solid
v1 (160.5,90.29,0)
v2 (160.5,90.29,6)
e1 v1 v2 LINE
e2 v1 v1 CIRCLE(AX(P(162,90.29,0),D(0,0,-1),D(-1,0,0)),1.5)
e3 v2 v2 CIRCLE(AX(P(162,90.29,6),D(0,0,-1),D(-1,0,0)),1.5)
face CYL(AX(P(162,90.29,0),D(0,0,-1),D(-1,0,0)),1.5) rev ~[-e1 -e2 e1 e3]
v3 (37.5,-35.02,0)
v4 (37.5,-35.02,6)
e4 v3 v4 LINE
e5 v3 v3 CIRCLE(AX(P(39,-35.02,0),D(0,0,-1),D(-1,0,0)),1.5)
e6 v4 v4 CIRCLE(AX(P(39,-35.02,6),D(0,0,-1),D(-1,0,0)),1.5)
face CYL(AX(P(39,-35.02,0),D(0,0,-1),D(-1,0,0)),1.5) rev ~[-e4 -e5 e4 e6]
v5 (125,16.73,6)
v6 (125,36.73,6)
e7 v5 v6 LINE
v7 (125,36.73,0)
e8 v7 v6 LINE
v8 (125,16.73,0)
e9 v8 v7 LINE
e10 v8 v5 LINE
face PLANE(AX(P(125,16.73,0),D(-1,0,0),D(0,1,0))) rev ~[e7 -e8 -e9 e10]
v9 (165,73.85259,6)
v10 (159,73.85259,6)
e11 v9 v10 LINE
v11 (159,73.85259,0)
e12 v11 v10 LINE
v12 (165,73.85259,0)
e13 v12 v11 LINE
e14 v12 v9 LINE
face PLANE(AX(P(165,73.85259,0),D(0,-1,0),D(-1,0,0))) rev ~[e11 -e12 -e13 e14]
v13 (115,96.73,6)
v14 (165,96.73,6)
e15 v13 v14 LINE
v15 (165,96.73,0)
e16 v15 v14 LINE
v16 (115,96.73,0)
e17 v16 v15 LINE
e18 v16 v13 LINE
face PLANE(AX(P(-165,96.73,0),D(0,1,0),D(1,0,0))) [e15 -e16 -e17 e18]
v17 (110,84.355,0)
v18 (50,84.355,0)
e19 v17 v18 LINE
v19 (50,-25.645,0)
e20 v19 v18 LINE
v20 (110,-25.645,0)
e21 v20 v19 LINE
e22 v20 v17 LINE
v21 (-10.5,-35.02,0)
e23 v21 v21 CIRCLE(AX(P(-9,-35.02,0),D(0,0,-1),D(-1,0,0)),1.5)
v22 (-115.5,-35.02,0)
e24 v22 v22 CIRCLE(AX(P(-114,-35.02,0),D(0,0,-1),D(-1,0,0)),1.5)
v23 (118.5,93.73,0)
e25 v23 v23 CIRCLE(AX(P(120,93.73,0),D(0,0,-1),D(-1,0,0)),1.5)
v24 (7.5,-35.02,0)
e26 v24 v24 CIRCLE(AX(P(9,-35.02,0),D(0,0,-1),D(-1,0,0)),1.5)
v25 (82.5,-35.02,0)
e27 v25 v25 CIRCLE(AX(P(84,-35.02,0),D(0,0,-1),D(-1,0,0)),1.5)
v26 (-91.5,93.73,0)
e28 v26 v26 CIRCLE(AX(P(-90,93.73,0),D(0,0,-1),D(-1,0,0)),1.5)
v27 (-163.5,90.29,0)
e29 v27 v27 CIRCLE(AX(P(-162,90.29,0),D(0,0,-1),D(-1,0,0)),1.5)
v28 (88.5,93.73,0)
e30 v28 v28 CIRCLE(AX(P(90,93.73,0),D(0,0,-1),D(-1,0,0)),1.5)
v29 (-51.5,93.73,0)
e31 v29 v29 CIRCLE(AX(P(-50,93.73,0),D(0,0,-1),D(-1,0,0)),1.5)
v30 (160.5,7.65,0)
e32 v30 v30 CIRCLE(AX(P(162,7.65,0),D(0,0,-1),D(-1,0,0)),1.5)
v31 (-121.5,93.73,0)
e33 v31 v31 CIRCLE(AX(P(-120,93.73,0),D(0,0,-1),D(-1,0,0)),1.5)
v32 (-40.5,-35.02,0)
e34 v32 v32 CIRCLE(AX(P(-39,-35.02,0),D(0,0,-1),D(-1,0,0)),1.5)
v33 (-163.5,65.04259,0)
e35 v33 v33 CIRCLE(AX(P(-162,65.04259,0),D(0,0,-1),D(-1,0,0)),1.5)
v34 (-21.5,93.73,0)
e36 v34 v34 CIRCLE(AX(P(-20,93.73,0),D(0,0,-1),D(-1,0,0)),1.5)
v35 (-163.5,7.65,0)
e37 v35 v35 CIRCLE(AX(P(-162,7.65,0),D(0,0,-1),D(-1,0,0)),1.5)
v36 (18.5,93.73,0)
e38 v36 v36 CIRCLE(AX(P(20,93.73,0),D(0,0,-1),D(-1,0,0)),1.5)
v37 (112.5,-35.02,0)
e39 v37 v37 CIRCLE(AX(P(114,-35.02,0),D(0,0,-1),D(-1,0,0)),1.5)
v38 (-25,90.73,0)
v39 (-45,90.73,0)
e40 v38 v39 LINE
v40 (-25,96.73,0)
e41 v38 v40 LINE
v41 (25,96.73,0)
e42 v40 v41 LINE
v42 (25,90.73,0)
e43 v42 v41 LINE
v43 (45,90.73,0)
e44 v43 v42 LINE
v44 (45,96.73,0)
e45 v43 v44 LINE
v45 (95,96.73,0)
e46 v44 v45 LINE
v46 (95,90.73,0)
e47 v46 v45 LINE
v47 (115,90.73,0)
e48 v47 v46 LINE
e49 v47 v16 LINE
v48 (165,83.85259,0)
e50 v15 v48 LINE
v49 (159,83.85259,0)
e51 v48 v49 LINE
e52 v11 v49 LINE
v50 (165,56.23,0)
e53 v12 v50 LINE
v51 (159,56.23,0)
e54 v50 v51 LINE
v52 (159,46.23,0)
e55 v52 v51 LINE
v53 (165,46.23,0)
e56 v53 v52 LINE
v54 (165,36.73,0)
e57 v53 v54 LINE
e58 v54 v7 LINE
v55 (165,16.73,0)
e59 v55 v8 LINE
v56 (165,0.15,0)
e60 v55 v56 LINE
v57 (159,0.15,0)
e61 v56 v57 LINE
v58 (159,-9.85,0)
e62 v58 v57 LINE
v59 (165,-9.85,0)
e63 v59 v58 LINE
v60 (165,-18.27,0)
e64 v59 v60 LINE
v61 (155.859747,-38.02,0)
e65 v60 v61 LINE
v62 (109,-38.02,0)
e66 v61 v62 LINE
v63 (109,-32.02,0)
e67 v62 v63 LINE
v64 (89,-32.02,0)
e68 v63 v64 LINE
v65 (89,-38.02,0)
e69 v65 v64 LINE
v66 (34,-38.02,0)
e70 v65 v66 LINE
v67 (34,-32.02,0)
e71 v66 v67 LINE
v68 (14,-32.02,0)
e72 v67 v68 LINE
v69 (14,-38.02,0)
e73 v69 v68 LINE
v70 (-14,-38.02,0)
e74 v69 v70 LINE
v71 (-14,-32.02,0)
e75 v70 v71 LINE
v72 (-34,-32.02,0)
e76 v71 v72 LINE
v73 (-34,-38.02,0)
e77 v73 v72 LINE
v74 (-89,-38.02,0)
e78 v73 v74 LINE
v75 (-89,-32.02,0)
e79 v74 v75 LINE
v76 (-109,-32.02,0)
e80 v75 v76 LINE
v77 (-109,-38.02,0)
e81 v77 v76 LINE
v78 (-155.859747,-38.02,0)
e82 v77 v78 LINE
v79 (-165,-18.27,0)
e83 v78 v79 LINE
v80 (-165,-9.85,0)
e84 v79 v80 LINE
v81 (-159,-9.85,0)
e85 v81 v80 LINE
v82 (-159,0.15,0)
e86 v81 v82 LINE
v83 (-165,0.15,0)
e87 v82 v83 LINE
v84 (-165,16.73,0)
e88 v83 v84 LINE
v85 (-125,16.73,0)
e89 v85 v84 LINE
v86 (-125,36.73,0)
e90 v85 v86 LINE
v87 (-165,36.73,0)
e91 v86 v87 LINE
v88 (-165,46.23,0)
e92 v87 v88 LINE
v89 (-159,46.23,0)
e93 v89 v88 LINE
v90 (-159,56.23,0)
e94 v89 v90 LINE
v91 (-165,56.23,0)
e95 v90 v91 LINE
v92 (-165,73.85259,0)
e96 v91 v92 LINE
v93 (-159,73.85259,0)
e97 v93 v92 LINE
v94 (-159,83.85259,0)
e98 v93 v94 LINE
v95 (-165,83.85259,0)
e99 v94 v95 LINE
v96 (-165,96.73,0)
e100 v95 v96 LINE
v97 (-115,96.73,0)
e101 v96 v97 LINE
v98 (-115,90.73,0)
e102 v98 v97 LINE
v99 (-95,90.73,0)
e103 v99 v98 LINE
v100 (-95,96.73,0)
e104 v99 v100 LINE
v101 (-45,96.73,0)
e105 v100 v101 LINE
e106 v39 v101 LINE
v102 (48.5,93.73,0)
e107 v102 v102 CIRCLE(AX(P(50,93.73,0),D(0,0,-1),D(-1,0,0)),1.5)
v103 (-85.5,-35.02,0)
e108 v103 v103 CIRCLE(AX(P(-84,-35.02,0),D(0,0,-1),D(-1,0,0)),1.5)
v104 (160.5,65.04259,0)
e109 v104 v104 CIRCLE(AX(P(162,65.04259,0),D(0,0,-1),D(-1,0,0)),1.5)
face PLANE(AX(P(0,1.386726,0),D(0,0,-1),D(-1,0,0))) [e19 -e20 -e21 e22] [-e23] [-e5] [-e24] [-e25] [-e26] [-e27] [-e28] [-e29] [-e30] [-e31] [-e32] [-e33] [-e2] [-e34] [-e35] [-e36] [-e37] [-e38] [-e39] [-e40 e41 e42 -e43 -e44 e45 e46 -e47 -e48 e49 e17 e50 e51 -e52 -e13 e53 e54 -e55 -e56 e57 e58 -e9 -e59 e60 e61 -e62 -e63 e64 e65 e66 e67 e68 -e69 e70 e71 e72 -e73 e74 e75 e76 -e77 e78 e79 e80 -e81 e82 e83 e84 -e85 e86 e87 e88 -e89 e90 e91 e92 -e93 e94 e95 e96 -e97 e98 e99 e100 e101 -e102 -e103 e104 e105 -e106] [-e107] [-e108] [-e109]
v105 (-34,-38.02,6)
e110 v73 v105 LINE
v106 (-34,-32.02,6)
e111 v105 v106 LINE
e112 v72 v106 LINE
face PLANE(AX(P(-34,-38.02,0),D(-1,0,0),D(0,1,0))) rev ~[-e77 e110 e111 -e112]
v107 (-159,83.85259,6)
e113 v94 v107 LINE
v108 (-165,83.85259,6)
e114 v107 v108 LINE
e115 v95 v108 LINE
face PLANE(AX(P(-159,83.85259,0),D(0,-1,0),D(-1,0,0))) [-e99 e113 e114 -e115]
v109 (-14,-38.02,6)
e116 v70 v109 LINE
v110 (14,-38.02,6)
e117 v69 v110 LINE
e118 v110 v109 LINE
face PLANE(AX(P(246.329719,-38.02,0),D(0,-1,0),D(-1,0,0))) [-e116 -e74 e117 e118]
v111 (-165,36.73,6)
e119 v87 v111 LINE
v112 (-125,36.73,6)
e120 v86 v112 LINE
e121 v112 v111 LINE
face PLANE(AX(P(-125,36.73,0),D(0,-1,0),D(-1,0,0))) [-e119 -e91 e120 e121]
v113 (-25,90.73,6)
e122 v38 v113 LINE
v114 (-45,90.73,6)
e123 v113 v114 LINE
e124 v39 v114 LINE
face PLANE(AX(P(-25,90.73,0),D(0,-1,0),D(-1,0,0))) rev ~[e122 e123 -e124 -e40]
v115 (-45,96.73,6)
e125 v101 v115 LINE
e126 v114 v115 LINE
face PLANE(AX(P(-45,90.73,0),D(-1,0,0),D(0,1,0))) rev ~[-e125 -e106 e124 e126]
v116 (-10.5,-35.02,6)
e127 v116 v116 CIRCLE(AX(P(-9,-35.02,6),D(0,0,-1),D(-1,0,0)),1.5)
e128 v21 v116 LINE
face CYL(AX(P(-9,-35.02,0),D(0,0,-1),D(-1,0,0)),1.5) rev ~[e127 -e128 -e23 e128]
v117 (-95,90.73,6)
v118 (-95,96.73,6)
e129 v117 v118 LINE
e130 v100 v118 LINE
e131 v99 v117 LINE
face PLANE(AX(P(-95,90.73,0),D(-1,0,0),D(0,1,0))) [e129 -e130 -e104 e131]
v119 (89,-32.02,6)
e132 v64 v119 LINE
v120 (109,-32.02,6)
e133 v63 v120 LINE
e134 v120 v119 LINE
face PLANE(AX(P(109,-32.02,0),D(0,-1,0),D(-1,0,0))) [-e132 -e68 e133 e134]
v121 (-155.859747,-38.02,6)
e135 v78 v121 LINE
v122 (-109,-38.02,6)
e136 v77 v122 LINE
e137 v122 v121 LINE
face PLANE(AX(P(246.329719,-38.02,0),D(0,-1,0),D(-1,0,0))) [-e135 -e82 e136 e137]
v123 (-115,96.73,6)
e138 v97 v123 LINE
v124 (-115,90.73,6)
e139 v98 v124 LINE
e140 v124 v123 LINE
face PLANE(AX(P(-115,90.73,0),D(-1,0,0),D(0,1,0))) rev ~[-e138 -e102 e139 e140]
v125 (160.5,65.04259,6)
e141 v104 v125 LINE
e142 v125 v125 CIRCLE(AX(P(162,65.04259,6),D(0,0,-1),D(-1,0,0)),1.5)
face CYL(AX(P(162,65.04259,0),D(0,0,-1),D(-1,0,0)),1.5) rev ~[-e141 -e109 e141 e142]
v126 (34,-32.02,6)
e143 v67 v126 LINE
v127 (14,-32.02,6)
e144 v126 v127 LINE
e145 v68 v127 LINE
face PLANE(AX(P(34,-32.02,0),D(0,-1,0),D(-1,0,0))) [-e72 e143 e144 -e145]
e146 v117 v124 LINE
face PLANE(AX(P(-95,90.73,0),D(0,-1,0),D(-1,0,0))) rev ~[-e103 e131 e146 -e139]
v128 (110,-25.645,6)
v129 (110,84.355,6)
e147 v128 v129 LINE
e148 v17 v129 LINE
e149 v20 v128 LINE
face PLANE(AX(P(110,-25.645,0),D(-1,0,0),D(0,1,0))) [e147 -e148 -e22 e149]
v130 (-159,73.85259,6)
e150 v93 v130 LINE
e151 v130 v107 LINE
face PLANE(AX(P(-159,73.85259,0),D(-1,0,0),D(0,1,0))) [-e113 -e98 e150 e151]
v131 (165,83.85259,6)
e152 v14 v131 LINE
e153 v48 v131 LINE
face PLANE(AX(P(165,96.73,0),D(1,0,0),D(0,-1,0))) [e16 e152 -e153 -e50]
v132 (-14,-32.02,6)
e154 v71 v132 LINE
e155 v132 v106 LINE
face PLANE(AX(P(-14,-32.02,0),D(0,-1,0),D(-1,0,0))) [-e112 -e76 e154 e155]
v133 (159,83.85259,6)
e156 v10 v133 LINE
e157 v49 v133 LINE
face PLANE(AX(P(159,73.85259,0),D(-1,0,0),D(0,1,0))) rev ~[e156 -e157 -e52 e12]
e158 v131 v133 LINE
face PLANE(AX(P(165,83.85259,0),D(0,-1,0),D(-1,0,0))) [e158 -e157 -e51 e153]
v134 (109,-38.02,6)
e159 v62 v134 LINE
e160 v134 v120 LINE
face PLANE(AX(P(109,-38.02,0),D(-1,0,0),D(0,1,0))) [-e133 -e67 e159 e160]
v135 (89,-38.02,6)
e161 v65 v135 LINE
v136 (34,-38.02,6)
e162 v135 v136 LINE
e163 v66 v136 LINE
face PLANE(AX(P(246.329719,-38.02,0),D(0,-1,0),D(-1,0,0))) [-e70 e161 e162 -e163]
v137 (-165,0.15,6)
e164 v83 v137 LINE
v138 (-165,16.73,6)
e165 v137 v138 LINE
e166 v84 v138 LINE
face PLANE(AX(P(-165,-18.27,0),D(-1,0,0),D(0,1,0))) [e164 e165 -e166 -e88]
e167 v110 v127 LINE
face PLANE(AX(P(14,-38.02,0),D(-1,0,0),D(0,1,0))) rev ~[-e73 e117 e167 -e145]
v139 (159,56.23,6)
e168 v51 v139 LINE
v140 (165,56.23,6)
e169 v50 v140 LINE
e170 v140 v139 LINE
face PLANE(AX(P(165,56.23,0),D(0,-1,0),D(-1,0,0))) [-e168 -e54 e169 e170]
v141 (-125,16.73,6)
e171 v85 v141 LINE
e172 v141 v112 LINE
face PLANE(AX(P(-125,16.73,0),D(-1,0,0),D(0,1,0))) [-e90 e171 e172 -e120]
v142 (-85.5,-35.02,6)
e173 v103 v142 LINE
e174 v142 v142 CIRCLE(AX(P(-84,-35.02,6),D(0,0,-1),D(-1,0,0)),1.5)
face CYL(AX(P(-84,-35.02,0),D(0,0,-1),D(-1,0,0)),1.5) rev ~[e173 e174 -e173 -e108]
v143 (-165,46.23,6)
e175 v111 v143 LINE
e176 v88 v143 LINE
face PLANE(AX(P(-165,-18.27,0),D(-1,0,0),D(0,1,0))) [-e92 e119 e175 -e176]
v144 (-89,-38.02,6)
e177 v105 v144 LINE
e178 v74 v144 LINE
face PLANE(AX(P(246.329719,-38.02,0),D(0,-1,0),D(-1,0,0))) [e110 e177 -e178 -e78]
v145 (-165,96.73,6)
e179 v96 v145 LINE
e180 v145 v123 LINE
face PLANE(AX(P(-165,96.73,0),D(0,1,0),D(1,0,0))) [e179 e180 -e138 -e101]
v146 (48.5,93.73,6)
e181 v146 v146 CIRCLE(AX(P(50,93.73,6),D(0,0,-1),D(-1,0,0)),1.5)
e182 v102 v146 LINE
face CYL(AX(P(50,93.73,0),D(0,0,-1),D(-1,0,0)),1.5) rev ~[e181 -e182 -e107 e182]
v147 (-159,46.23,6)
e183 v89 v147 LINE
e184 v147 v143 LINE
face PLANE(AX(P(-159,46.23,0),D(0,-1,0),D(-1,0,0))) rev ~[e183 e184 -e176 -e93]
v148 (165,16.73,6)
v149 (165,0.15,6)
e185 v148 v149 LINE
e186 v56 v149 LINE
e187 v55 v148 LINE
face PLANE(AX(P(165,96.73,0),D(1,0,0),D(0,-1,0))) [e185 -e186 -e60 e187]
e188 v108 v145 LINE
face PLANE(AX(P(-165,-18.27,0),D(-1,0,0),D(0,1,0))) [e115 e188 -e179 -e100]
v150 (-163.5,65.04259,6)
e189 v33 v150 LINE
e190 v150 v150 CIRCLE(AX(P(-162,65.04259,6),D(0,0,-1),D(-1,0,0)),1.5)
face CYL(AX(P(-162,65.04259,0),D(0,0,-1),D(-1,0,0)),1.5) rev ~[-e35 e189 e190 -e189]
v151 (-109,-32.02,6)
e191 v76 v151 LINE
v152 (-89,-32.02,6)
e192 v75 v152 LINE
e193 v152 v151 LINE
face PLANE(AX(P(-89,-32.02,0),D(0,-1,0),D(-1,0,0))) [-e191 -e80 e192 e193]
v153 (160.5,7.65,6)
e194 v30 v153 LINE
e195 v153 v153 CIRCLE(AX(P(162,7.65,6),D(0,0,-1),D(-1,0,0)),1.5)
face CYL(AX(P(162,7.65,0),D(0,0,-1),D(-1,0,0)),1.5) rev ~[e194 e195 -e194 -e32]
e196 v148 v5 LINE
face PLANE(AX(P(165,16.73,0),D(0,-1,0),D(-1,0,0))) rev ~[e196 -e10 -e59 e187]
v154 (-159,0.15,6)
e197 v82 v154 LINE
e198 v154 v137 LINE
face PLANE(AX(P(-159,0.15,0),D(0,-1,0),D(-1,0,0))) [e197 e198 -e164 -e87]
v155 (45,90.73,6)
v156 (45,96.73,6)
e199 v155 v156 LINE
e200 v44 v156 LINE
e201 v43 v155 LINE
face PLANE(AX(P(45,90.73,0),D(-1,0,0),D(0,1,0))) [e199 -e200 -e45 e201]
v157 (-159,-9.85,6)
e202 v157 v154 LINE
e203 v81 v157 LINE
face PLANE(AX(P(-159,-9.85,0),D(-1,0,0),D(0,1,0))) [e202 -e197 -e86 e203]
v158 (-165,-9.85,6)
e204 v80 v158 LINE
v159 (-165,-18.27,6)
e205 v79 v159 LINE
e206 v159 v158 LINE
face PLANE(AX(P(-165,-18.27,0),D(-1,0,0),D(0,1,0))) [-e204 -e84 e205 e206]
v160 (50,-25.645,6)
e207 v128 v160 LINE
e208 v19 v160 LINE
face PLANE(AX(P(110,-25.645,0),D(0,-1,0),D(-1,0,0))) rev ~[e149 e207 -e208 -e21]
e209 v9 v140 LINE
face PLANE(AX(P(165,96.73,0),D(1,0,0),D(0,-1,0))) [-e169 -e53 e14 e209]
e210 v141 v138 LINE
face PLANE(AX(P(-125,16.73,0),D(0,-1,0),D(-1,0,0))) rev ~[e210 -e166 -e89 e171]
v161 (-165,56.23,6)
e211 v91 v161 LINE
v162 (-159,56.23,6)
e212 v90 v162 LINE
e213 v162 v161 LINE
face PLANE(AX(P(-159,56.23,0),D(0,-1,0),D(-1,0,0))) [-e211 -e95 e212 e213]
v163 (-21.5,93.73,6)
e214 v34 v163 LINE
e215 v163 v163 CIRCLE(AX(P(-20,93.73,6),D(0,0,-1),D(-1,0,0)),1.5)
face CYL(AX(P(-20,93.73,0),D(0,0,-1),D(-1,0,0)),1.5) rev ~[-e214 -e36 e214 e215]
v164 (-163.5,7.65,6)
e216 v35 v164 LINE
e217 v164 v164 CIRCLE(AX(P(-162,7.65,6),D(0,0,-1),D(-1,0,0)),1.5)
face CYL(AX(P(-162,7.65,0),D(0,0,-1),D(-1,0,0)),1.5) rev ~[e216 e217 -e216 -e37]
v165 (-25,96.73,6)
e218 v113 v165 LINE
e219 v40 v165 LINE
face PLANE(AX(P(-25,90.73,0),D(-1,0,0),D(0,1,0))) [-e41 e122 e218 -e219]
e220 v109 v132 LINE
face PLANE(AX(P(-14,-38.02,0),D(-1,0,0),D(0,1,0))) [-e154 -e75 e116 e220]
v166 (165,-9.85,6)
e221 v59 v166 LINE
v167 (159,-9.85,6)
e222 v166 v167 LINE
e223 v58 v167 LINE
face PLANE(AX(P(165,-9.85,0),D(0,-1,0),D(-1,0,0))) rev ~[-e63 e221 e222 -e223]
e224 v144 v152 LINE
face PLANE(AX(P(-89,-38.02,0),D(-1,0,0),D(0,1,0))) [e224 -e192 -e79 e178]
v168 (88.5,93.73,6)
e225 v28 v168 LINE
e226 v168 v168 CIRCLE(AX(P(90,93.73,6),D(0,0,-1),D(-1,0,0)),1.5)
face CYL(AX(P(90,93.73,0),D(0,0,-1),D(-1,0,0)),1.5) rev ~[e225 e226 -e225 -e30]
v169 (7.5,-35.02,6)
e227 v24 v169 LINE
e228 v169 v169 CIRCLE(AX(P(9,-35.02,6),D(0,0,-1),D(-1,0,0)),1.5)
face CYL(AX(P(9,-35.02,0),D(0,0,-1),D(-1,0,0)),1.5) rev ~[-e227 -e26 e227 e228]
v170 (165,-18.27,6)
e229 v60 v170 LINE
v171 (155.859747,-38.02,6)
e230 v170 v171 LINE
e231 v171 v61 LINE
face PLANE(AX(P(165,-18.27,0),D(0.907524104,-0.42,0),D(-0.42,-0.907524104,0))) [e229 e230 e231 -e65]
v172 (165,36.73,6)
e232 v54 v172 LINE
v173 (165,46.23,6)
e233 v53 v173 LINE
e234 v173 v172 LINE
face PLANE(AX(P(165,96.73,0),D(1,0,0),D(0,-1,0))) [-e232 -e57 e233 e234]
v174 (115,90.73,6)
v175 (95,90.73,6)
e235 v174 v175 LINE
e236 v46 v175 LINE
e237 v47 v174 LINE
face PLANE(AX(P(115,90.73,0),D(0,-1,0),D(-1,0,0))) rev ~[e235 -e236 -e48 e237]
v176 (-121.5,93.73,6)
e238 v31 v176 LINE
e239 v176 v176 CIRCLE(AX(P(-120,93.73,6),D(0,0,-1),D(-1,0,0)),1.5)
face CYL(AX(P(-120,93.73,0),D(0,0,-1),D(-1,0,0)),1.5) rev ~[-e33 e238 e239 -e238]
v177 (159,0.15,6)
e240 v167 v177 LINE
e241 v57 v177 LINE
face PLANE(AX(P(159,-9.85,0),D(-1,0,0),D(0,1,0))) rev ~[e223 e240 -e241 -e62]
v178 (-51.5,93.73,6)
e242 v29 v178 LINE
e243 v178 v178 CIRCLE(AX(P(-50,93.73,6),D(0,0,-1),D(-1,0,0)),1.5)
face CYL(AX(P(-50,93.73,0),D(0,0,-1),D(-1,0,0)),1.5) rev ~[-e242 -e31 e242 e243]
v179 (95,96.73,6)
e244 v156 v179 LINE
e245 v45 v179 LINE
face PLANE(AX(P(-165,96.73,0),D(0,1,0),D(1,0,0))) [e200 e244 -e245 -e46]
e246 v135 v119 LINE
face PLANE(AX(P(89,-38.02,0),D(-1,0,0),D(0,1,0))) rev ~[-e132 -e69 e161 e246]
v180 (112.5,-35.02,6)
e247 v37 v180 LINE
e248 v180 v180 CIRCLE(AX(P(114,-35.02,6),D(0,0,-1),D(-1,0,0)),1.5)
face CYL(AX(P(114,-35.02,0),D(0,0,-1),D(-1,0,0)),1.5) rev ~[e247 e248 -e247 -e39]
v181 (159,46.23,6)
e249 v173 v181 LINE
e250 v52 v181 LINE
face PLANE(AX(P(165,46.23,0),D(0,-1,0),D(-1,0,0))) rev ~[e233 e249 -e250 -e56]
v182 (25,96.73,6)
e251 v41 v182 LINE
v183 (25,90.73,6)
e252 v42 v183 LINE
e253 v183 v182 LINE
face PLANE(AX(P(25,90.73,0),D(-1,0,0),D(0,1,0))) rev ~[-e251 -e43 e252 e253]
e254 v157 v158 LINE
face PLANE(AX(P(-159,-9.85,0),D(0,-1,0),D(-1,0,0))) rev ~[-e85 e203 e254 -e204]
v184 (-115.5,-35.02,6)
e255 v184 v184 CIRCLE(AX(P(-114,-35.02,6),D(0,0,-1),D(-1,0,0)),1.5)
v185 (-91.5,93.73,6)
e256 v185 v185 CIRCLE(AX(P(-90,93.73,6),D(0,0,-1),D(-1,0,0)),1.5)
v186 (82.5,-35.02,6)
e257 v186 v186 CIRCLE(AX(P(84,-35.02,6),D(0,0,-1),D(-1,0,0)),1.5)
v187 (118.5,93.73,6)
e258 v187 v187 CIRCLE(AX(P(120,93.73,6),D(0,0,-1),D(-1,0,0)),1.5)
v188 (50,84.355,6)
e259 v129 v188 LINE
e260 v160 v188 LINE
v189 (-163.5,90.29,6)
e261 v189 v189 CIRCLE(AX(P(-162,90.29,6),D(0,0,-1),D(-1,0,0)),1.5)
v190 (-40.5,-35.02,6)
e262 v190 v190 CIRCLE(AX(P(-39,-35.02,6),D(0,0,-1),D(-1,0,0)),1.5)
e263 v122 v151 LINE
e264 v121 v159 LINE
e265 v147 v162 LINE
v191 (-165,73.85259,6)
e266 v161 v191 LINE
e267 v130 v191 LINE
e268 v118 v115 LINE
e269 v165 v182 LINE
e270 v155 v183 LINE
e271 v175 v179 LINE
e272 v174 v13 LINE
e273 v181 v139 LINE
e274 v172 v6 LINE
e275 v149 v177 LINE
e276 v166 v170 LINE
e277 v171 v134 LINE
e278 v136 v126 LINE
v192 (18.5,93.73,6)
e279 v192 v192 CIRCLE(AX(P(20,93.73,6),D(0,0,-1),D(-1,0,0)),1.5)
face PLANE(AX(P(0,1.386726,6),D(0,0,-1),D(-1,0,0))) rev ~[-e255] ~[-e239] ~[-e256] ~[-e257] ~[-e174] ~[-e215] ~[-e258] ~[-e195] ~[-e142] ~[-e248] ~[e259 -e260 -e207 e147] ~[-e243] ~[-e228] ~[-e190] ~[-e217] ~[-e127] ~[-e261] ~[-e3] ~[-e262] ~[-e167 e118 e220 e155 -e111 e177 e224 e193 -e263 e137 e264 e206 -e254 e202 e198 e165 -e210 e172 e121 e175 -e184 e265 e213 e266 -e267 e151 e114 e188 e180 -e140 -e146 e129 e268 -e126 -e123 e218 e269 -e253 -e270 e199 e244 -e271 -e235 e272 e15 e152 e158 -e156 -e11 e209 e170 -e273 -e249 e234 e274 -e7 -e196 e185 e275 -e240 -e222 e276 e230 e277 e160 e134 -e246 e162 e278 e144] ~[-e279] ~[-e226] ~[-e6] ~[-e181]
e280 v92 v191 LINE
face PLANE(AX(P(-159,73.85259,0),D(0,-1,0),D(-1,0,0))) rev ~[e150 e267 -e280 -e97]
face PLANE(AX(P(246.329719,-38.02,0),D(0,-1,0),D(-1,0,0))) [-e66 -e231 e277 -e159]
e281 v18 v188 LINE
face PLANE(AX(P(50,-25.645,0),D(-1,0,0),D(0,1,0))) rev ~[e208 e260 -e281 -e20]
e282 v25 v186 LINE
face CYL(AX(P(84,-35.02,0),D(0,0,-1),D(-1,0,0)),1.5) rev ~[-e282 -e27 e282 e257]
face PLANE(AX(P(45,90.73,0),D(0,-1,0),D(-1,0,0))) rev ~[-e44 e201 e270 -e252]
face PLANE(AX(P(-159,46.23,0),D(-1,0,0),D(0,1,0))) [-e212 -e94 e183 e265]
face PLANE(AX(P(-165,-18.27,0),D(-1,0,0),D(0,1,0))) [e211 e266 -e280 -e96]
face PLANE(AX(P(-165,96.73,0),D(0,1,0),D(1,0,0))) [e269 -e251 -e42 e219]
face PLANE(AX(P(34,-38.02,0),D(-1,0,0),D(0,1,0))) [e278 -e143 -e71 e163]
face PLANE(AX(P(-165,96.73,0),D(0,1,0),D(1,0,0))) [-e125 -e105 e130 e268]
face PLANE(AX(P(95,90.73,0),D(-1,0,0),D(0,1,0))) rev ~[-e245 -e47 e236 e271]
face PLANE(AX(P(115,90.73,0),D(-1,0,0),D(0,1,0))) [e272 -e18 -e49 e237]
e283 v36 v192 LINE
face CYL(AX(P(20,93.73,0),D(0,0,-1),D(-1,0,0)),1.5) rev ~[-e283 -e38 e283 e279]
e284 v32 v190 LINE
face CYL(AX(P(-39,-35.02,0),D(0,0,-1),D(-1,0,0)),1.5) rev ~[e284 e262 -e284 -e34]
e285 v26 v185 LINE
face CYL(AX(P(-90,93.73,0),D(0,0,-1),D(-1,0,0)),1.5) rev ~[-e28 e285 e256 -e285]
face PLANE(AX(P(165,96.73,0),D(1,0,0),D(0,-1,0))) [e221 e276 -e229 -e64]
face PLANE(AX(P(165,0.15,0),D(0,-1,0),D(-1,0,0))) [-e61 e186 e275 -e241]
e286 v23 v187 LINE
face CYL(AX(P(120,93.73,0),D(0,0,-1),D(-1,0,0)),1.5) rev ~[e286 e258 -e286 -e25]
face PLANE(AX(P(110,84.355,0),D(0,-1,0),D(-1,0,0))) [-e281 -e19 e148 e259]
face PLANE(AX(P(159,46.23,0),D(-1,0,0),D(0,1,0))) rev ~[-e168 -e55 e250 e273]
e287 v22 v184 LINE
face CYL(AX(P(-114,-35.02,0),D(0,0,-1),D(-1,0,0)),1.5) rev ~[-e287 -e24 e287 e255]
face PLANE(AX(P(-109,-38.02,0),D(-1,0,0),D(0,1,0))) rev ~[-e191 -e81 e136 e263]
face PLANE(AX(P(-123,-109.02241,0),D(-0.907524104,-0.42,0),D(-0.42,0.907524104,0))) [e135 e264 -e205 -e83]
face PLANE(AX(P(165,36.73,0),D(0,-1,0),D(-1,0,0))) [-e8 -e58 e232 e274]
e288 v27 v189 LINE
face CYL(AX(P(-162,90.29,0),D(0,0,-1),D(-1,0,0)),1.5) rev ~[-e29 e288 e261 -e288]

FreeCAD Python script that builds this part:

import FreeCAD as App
import Part
import Sketcher
from FreeCAD import Vector
Q = App.Units.Quantity

doc = App.newDocument("Part")
body = doc.addObject("PartDesign::Body", "Body")

# Sketch on XY plane
sketch1 = body.newObject("Sketcher::SketchObject", "Sketch")
sketch1.AttachmentSupport = (doc.getObject("XY_Plane"), [""])
sketch1.MapMode = "FlatFace"
sketch1.addGeometry([
    Part.LineSegment(Vector(165, 96.73, 0), Vector(-165, 96.73, 0)),  # 0
    Part.LineSegment(Vector(-165, 96.73, 0), Vector(-165, -18.27, 0)),  # 1
    Part.LineSegment(Vector(-165, -18.27, 0), Vector(-123, -109.02241, 0)),  # 2
    Part.LineSegment(Vector(-123, -109.02241, 0), Vector(123, -109.02241, 0)),  # 3
    Part.LineSegment(Vector(123, -109.02241, 0), Vector(165, -18.27, 0)),  # 4
    Part.LineSegment(Vector(165, -18.27, 0), Vector(165, 96.73, 0)),  # 5
], False)
sketch1.addConstraint([
    Sketcher.Constraint("Coincident", 0, 2, 1, 1),
    Sketcher.Constraint("Coincident", 1, 2, 2, 1),
    Sketcher.Constraint("Coincident", 2, 2, 3, 1),
    Sketcher.Constraint("Coincident", 3, 2, 4, 1),
    Sketcher.Constraint("Coincident", 4, 2, 5, 1),
    Sketcher.Constraint("Coincident", 5, 2, 0, 1),
    Sketcher.Constraint("Horizontal", 0),
    Sketcher.Constraint("Vertical", 1),
    Sketcher.Constraint("Horizontal", 3),
    Sketcher.Constraint("Vertical", 5),
    Sketcher.Constraint("Symmetric", 1, 2, 4, 2, -2),
    Sketcher.Constraint("Equal", 2, 4),
    Sketcher.Constraint("DistanceX", 0, 2, 0, 1, Q("330 mm")),
    Sketcher.Constraint("DistanceX", 3, 1, 3, 2, Q("246 mm")),
    Sketcher.Constraint("DistanceY", 1, 2, 1, 1, Q("115 mm")),
    Sketcher.Constraint("Distance", 2, Q("100 mm")),
    Sketcher.Constraint("DistanceY", -1, 1, 0, 2, Q("96.73 mm")),
])
pad1 = body.newObject("PartDesign::Pad", "Pad")
pad1.Profile = sketch1
pad1.Length = 6

# Sketch on XY plane
sketch2 = body.newObject("Sketcher::SketchObject", "Sketch001")
sketch2.AttachmentSupport = (doc.getObject("XY_Plane"), [""])
sketch2.MapMode = "FlatFace"
sketch2.addGeometry([
    Part.LineSegment(Vector(-159, 0.15, 0), Vector(-159, -9.85, 0)),  # 0
    Part.LineSegment(Vector(-159, -9.85, 0), Vector(-165, -9.85, 0)),  # 1
    Part.LineSegment(Vector(-165, -9.85, 0), Vector(-165, 0.15, 0)),  # 2
    Part.LineSegment(Vector(-165, 0.15, 0), Vector(-159, 0.15, 0)),  # 3
    Part.LineSegment(Vector(-159, 83.85259, 0), Vector(-159, 73.85259, 0)),  # 4
    Part.LineSegment(Vector(-159, 73.85259, 0), Vector(-165, 73.85259, 0)),  # 5
    Part.LineSegment(Vector(-165, 73.85259, 0), Vector(-165, 83.85259, 0)),  # 6
    Part.LineSegment(Vector(-165, 83.85259, 0), Vector(-159, 83.85259, 0)),  # 7
    Part.LineSegment(Vector(34, -32.02, 0), Vector(34, -38.02, 0)),  # 8
    Part.LineSegment(Vector(34, -38.02, 0), Vector(14, -38.02, 0)),  # 9
    Part.LineSegment(Vector(14, -38.02, 0), Vector(14, -32.02, 0)),  # 10
    Part.LineSegment(Vector(14, -32.02, 0), Vector(34, -32.02, 0)),  # 11
    Part.LineSegment(Vector(-89, -32.02, 0), Vector(-89, -38.02, 0)),  # 12
    Part.LineSegment(Vector(-89, -38.02, 0), Vector(-109, -38.02, 0)),  # 13
    Part.LineSegment(Vector(-109, -38.02, 0), Vector(-109, -32.02, 0)),  # 14
    Part.LineSegment(Vector(-109, -32.02, 0), Vector(-89, -32.02, 0)),  # 15
    Part.LineSegment(Vector(165, 56.23, 0), Vector(165, 46.23, 0)),  # 16
    Part.LineSegment(Vector(165, 46.23, 0), Vector(159, 46.23, 0)),  # 17
    Part.LineSegment(Vector(159, 46.23, 0), Vector(159, 56.23, 0)),  # 18
    Part.LineSegment(Vector(159, 56.23, 0), Vector(165, 56.23, 0)),  # 19
    Part.LineSegment(Vector(110, 84.355, 0), Vector(110, -25.645, 0)),  # 20
    Part.LineSegment(Vector(110, -25.645, 0), Vector(50, -25.645, 0)),  # 21
    Part.LineSegment(Vector(50, -25.645, 0), Vector(50, 84.355, 0)),  # 22
    Part.LineSegment(Vector(50, 84.355, 0), Vector(110, 84.355, 0)),  # 23
    Part.LineSegment(Vector(-14, -32.02, 0), Vector(-14, -38.02, 0)),  # 24
    Part.LineSegment(Vector(-14, -38.02, 0), Vector(-34, -38.02, 0)),  # 25
    Part.LineSegment(Vector(-34, -38.02, 0), Vector(-34, -32.02, 0)),  # 26
    Part.LineSegment(Vector(-34, -32.02, 0), Vector(-14, -32.02, 0)),  # 27
    Part.LineSegment(Vector(165, 83.85259, 0), Vector(165, 73.85259, 0)),  # 28
    Part.LineSegment(Vector(165, 73.85259, 0), Vector(159, 73.85259, 0)),  # 29
    Part.LineSegment(Vector(159, 73.85259, 0), Vector(159, 83.85259, 0)),  # 30
    Part.LineSegment(Vector(159, 83.85259, 0), Vector(165, 83.85259, 0)),  # 31
    Part.LineSegment(Vector(165, 0.15, 0), Vector(165, -9.85, 0)),  # 32
    Part.LineSegment(Vector(165, -9.85, 0), Vector(159, -9.85, 0)),  # 33
    Part.LineSegment(Vector(159, -9.85, 0), Vector(159, 0.15, 0)),  # 34
    Part.LineSegment(Vector(159, 0.15, 0), Vector(165, 0.15, 0)),  # 35
    Part.LineSegment(Vector(-95, 96.73, 0), Vector(-95, 90.73, 0)),  # 36
    Part.LineSegment(Vector(-95, 90.73, 0), Vector(-115, 90.73, 0)),  # 37
    Part.LineSegment(Vector(-115, 90.73, 0), Vector(-115, 96.73, 0)),  # 38
    Part.LineSegment(Vector(-115, 96.73, 0), Vector(-95, 96.73, 0)),  # 39
    Part.LineSegment(Vector(45, 96.73, 0), Vector(45, 90.73, 0)),  # 40
    Part.LineSegment(Vector(45, 90.73, 0), Vector(25, 90.73, 0)),  # 41
    Part.LineSegment(Vector(25, 90.73, 0), Vector(25, 96.73, 0)),  # 42
    Part.LineSegment(Vector(25, 96.73, 0), Vector(45, 96.73, 0)),  # 43
    Part.LineSegment(Vector(-25, 96.73, 0), Vector(-25, 90.73, 0)),  # 44
    Part.LineSegment(Vector(-25, 90.73, 0), Vector(-45, 90.73, 0)),  # 45
    Part.LineSegment(Vector(-45, 90.73, 0), Vector(-45, 96.73, 0)),  # 46
    Part.LineSegment(Vector(-45, 96.73, 0), Vector(-25, 96.73, 0)),  # 47
    Part.LineSegment(Vector(115, 96.73, 0), Vector(115, 90.73, 0)),  # 48
    Part.LineSegment(Vector(115, 90.73, 0), Vector(95, 90.73, 0)),  # 49
    Part.LineSegment(Vector(95, 90.73, 0), Vector(95, 96.73, 0)),  # 50
    Part.LineSegment(Vector(95, 96.73, 0), Vector(115, 96.73, 0)),  # 51
    Part.LineSegment(Vector(-159, 56.23, 0), Vector(-159, 46.23, 0)),  # 52
    Part.LineSegment(Vector(-159, 46.23, 0), Vector(-165, 46.23, 0)),  # 53
    Part.LineSegment(Vector(-165, 46.23, 0), Vector(-165, 56.23, 0)),  # 54
    Part.LineSegment(Vector(-165, 56.23, 0), Vector(-159, 56.23, 0)),  # 55
    Part.LineSegment(Vector(109, -32.02, 0), Vector(109, -38.02, 0)),  # 56
    Part.LineSegment(Vector(109, -38.02, 0), Vector(89, -38.02, 0)),  # 57
    Part.LineSegment(Vector(89, -38.02, 0), Vector(89, -32.02, 0)),  # 58
    Part.LineSegment(Vector(89, -32.02, 0), Vector(109, -32.02, 0)),  # 59
    Part.LineSegment(Vector(165, 36.73, 0), Vector(165, 16.73, 0)),  # 60
    Part.LineSegment(Vector(165, 16.73, 0), Vector(125, 16.73, 0)),  # 61
    Part.LineSegment(Vector(125, 16.73, 0), Vector(125, 36.73, 0)),  # 62
    Part.LineSegment(Vector(125, 36.73, 0), Vector(165, 36.73, 0)),  # 63
    Part.LineSegment(Vector(-125, 36.73, 0), Vector(-125, 16.73, 0)),  # 64
    Part.LineSegment(Vector(-125, 16.73, 0), Vector(-165, 16.73, 0)),  # 65
    Part.LineSegment(Vector(-165, 16.73, 0), Vector(-165, 36.73, 0)),  # 66
    Part.LineSegment(Vector(-165, 36.73, 0), Vector(-125, 36.73, 0)),  # 67
], False)
sketch2.addConstraint([
    Sketcher.Constraint("Coincident", 0, 2, 1, 1),
    Sketcher.Constraint("Coincident", 1, 2, 2, 1),
    Sketcher.Constraint("Coincident", 2, 2, 3, 1),
    Sketcher.Constraint("Coincident", 3, 2, 0, 1),
    Sketcher.Constraint("Coincident", 4, 2, 5, 1),
    Sketcher.Constraint("Coincident", 5, 2, 6, 1),
    Sketcher.Constraint("Coincident", 6, 2, 7, 1),
    Sketcher.Constraint("Coincident", 7, 2, 4, 1),
    Sketcher.Constraint("Coincident", 8, 2, 9, 1),
    Sketcher.Constraint("Coincident", 9, 2, 10, 1),
    Sketcher.Constraint("Coincident", 10, 2, 11, 1),
    Sketcher.Constraint("Coincident", 11, 2, 8, 1),
    Sketcher.Constraint("Coincident", 12, 2, 13, 1),
    Sketcher.Constraint("Coincident", 13, 2, 14, 1),
    Sketcher.Constraint("Coincident", 14, 2, 15, 1),
    Sketcher.Constraint("Coincident", 15, 2, 12, 1),
    Sketcher.Constraint("Coincident", 16, 2, 17, 1),
    Sketcher.Constraint("Coincident", 17, 2, 18, 1),
    Sketcher.Constraint("Coincident", 18, 2, 19, 1),
    Sketcher.Constraint("Coincident", 19, 2, 16, 1),
    Sketcher.Constraint("Coincident", 20, 2, 21, 1),
    Sketcher.Constraint("Coincident", 21, 2, 22, 1),
    Sketcher.Constraint("Coincident", 22, 2, 23, 1),
    Sketcher.Constraint("Coincident", 23, 2, 20, 1),
    Sketcher.Constraint("Coincident", 24, 2, 25, 1),
    Sketcher.Constraint("Coincident", 25, 2, 26, 1),
    Sketcher.Constraint("Coincident", 26, 2, 27, 1),
    Sketcher.Constraint("Coincident", 27, 2, 24, 1),
    Sketcher.Constraint("Coincident", 28, 2, 29, 1),
    Sketcher.Constraint("Coincident", 29, 2, 30, 1),
    Sketcher.Constraint("Coincident", 30, 2, 31, 1),
    Sketcher.Constraint("Coincident", 31, 2, 28, 1),
    Sketcher.Constraint("Coincident", 32, 2, 33, 1),
    Sketcher.Constraint("Coincident", 33, 2, 34, 1),
    Sketcher.Constraint("Coincident", 34, 2, 35, 1),
    Sketcher.Constraint("Coincident", 35, 2, 32, 1),
    Sketcher.Constraint("Coincident", 36, 2, 37, 1),
    Sketcher.Constraint("Coincident", 37, 2, 38, 1),
    Sketcher.Constraint("Coincident", 38, 2, 39, 1),
    Sketcher.Constraint("Coincident", 39, 2, 36, 1),
    Sketcher.Constraint("Coincident", 40, 2, 41, 1),
    Sketcher.Constraint("Coincident", 41, 2, 42, 1),
    Sketcher.Constraint("Coincident", 42, 2, 43, 1),
    Sketcher.Constraint("Coincident", 43, 2, 40, 1),
    Sketcher.Constraint("Coincident", 44, 2, 45, 1),
    Sketcher.Constraint("Coincident", 45, 2, 46, 1),
    Sketcher.Constraint("Coincident", 46, 2, 47, 1),
    Sketcher.Constraint("Coincident", 47, 2, 44, 1),
    Sketcher.Constraint("Coincident", 48, 2, 49, 1),
    Sketcher.Constraint("Coincident", 49, 2, 50, 1),
    Sketcher.Constraint("Coincident", 50, 2, 51, 1),
    Sketcher.Constraint("Coincident", 51, 2, 48, 1),
    Sketcher.Constraint("Coincident", 52, 2, 53, 1),
    Sketcher.Constraint("Coincident", 53, 2, 54, 1),
    Sketcher.Constraint("Coincident", 54, 2, 55, 1),
    Sketcher.Constraint("Coincident", 55, 2, 52, 1),
    Sketcher.Constraint("Coincident", 56, 2, 57, 1),
    Sketcher.Constraint("Coincident", 57, 2, 58, 1),
    Sketcher.Constraint("Coincident", 58, 2, 59, 1),
    Sketcher.Constraint("Coincident", 59, 2, 56, 1),
    Sketcher.Constraint("Coincident", 60, 2, 61, 1),
    Sketcher.Constraint("Coincident", 61, 2, 62, 1),
    Sketcher.Constraint("Coincident", 62, 2, 63, 1),
    Sketcher.Constraint("Coincident", 63, 2, 60, 1),
    Sketcher.Constraint("Coincident", 64, 2, 65, 1),
    Sketcher.Constraint("Coincident", 65, 2, 66, 1),
    Sketcher.Constraint("Coincident", 66, 2, 67, 1),
    Sketcher.Constraint("Coincident", 67, 2, 64, 1),
    Sketcher.Constraint("Vertical", 0),
    Sketcher.Constraint("Horizontal", 1),
    Sketcher.Constraint("Vertical", 2),
    Sketcher.Constraint("Horizontal", 3),
    Sketcher.Constraint("Vertical", 4),
    Sketcher.Constraint("Horizontal", 5),
    Sketcher.Constraint("Vertical", 6),
    Sketcher.Constraint("Horizontal", 7),
    Sketcher.Constraint("Vertical", 8),
    Sketcher.Constraint("Horizontal", 9),
    Sketcher.Constraint("Vertical", 10),
    Sketcher.Constraint("Horizontal", 11),
    Sketcher.Constraint("Vertical", 12),
    Sketcher.Constraint("Horizontal", 13),
    Sketcher.Constraint("Vertical", 14),
    Sketcher.Constraint("Horizontal", 15),
    Sketcher.Constraint("Vertical", 16),
    Sketcher.Constraint("Horizontal", 17),
    Sketcher.Constraint("Vertical", 18),
    Sketcher.Constraint("Horizontal", 19),
    Sketcher.Constraint("Vertical", 20),
    Sketcher.Constraint("Horizontal", 21),
    Sketcher.Constraint("Vertical", 22),
    Sketcher.Constraint("Horizontal", 23),
    Sketcher.Constraint("Vertical", 24),
    Sketcher.Constraint("Horizontal", 25),
    Sketcher.Constraint("Vertical", 26),
    Sketcher.Constraint("Horizontal", 27),
    Sketcher.Constraint("Vertical", 28),
    Sketcher.Constraint("Horizontal", 29),
    Sketcher.Constraint("Vertical", 30),
    Sketcher.Constraint("Horizontal", 31),
    Sketcher.Constraint("Vertical", 32),
    Sketcher.Constraint("Horizontal", 33),
    Sketcher.Constraint("Vertical", 34),
    Sketcher.Constraint("Horizontal", 35),
    Sketcher.Constraint("Vertical", 36),
    Sketcher.Constraint("Horizontal", 37),
    Sketcher.Constraint("Vertical", 38),
    Sketcher.Constraint("Horizontal", 39),
    Sketcher.Constraint("Vertical", 40),
    Sketcher.Constraint("Horizontal", 41),
    Sketcher.Constraint("Vertical", 42),
    Sketcher.Constraint("Horizontal", 43),
    Sketcher.Constraint("Vertical", 44),
    Sketcher.Constraint("Horizontal", 45),
    Sketcher.Constraint("Vertical", 46),
    Sketcher.Constraint("Horizontal", 47),
    Sketcher.Constraint("Vertical", 48),
    Sketcher.Constraint("Horizontal", 49),
    Sketcher.Constraint("Vertical", 50),
    Sketcher.Constraint("Horizontal", 51),
    Sketcher.Constraint("Vertical", 52),
    Sketcher.Constraint("Horizontal", 53),
    Sketcher.Constraint("Vertical", 54),
    Sketcher.Constraint("Horizontal", 55),
    Sketcher.Constraint("Vertical", 56),
    Sketcher.Constraint("Horizontal", 57),
    Sketcher.Constraint("Vertical", 58),
    Sketcher.Constraint("Horizontal", 59),
    Sketcher.Constraint("Vertical", 60),
    Sketcher.Constraint("Horizontal", 61),
    Sketcher.Constraint("Vertical", 62),
    Sketcher.Constraint("Horizontal", 63),
    Sketcher.Constraint("Vertical", 64),
    Sketcher.Constraint("Horizontal", 65),
    Sketcher.Constraint("Vertical", 66),
    Sketcher.Constraint("Horizontal", 67),
    Sketcher.Constraint("Symmetric", 9, 2, 24, 2, -2),
    Sketcher.Constraint("Symmetric", 11, 2, 26, 2, -2),
    Sketcher.Constraint("Symmetric", 5, 2, 28, 2, -2),
    Sketcher.Constraint("Symmetric", 7, 2, 30, 2, -2),
    Sketcher.Constraint("Symmetric", 1, 2, 32, 2, -2),
    Sketcher.Constraint("Symmetric", 3, 2, 34, 2, -2),
    Sketcher.Constraint("Symmetric", 41, 2, 44, 2, -2),
    Sketcher.Constraint("Symmetric", 43, 2, 46, 2, -2),
    Sketcher.Constraint("Symmetric", 37, 2, 48, 2, -2),
    Sketcher.Constraint("Symmetric", 39, 2, 50, 2, -2),
    Sketcher.Constraint("Symmetric", 17, 2, 52, 2, -2),
    Sketcher.Constraint("Symmetric", 19, 2, 54, 2, -2),
    Sketcher.Constraint("Symmetric", 13, 2, 56, 2, -2),
    Sketcher.Constraint("Symmetric", 15, 2, 58, 2, -2),
    Sketcher.Constraint("Symmetric", 61, 2, 64, 2, -2),
    Sketcher.Constraint("Symmetric", 63, 2, 66, 2, -2),
    Sketcher.Constraint("Horizontal", 9, 2, 12, 2),
    Sketcher.Constraint("Horizontal", 11, 2, 14, 2),
    Sketcher.Constraint("Horizontal", 37, 2, 40, 2),
    Sketcher.Constraint("Horizontal", 39, 2, 42, 2),
    Sketcher.Constraint("Vertical", 3, 2, 4, 2),
    Sketcher.Constraint("Vertical", 2, 2, 5, 2),
    Sketcher.Constraint("Vertical", 19, 2, 28, 2),
    Sketcher.Constraint("Vertical", 18, 2, 29, 2),
    Sketcher.Constraint("Vertical", 35, 2, 60, 2),
    Sketcher.Constraint("Equal", 11, 13),
    Sketcher.Constraint("Equal", 27, 37),
    Sketcher.Constraint("Equal", 39, 41),
    Sketcher.Constraint("Equal", 2, 4),
    Sketcher.Constraint("Equal", 55, 8),
    Sketcher.Constraint("Equal", 6, 16),
    Sketcher.Constraint("Equal", 26, 36),
    Sketcher.Constraint("Equal", 59, 60),
    Sketcher.Constraint("DistanceX", 1, 2, 1, 1, Q("6 mm")),
    Sketcher.Constraint("DistanceX", 9, 2, 9, 1, Q("20 mm")),
    Sketcher.Constraint("DistanceX", 21, 2, 21, 1, Q("60 mm")),
    Sketcher.Constraint("DistanceX", 61, 2, 61, 1, Q("40 mm")),
    Sketcher.Constraint("DistanceY", 0, 2, 0, 1, Q("10 mm")),
    Sketcher.Constraint("DistanceY", 20, 2, 20, 1, Q("110 mm")),
    Sketcher.Constraint("DistanceX", 0, 2, -1, 1, Q("159 mm")),
    Sketcher.Constraint("DistanceX", -1, 1, 8, 2, Q("34 mm")),
    Sketcher.Constraint("DistanceX", 12, 2, -1, 1, Q("89 mm")),
    Sketcher.Constraint("DistanceX", -1, 1, 20, 2, Q("110 mm")),
    Sketcher.Constraint("DistanceX", 36, 2, -1, 1, Q("95 mm")),
    Sketcher.Constraint("DistanceX", -1, 1, 40, 2, Q("45 mm")),
    Sketcher.Constraint("DistanceY", 0, 2, -1, 1, Q("9.85 mm")),
    Sketcher.Constraint("DistanceY", 8, 2, -1, 1, Q("38.02 mm")),
    Sketcher.Constraint("DistanceY", -1, 1, 16, 2, Q("46.23 mm")),
    Sketcher.Constraint("DistanceY", -1, 1, 36, 2, Q("90.73 mm")),
    Sketcher.Constraint("DistanceY", -1, 1, 60, 2, Q("16.73 mm")),
    Sketcher.Constraint("DistanceY", 20, 2, -1, 1, Q("25.645 mm")),
    Sketcher.Constraint("DistanceY", -1, 1, 4, 2, Q("73.85259 mm")),
])
pocket1 = body.newObject("PartDesign::Pocket", "Pocket")
pocket1.Profile = sketch2
pocket1.Length = 6
pocket1.Reversed = True

# Sketch on XY plane
sketch3 = body.newObject("Sketcher::SketchObject", "Sketch002")
sketch3.AttachmentSupport = (doc.getObject("XY_Plane"), [""])
sketch3.MapMode = "FlatFace"
sketch3.addGeometry([
    Part.Circle(Vector(-162, 7.65, 0), Vector(0, 0, 1), 1.5),  # 0
    Part.Circle(Vector(-114, -35.02, 0), Vector(0, 0, 1), 1.5),  # 1
    Part.Circle(Vector(-162, 65.04259, 0), Vector(0, 0, 1), 1.5),  # 2
    Part.Circle(Vector(-84, -35.02, 0), Vector(0, 0, 1), 1.5),  # 3
    Part.Circle(Vector(-39, -35.02, 0), Vector(0, 0, 1), 1.5),  # 4
    Part.Circle(Vector(-162, 90.29, 0), Vector(0, 0, 1), 1.5),  # 5
    Part.Circle(Vector(-9, -35.02, 0), Vector(0, 0, 1), 1.5),  # 6
    Part.Circle(Vector(9, -35.02, 0), Vector(0, 0, 1), 1.5),  # 7
    Part.Circle(Vector(39, -35.02, 0), Vector(0, 0, 1), 1.5),  # 8
    Part.Circle(Vector(84, -35.02, 0), Vector(0, 0, 1), 1.5),  # 9
    Part.Circle(Vector(-120, 93.73, 0), Vector(0, 0, 1), 1.5),  # 10
    Part.Circle(Vector(114, -35.02, 0), Vector(0, 0, 1), 1.5),  # 11
    Part.Circle(Vector(-90, 93.73, 0), Vector(0, 0, 1), 1.5),  # 12
    Part.Circle(Vector(-50, 93.73, 0), Vector(0, 0, 1), 1.5),  # 13
    Part.Circle(Vector(-20, 93.73, 0), Vector(0, 0, 1), 1.5),  # 14
    Part.Circle(Vector(20, 93.73, 0), Vector(0, 0, 1), 1.5),  # 15
    Part.Circle(Vector(50, 93.73, 0), Vector(0, 0, 1), 1.5),  # 16
    Part.Circle(Vector(90, 93.73, 0), Vector(0, 0, 1), 1.5),  # 17
    Part.Circle(Vector(120, 93.73, 0), Vector(0, 0, 1), 1.5),  # 18
    Part.Circle(Vector(162, 90.29, 0), Vector(0, 0, 1), 1.5),  # 19
    Part.Circle(Vector(162, 65.04259, 0), Vector(0, 0, 1), 1.5),  # 20
    Part.Circle(Vector(162, 7.65, 0), Vector(0, 0, 1), 1.5),  # 21
], False)
sketch3.addConstraint([
    Sketcher.Constraint("Equal", 0, 1),
    Sketcher.Constraint("Equal", 1, 2),
    Sketcher.Constraint("Equal", 2, 3),
    Sketcher.Constraint("Equal", 3, 4),
    Sketcher.Constraint("Equal", 4, 5),
    Sketcher.Constraint("Equal", 5, 6),
    Sketcher.Constraint("Equal", 6, 7),
    Sketcher.Constraint("Equal", 7, 8),
    Sketcher.Constraint("Equal", 8, 9),
    Sketcher.Constraint("Equal", 9, 10),
    Sketcher.Constraint("Equal", 10, 11),
    Sketcher.Constraint("Equal", 11, 12),
    Sketcher.Constraint("Equal", 12, 13),
    Sketcher.Constraint("Equal", 13, 14),
    Sketcher.Constraint("Equal", 14, 15),
    Sketcher.Constraint("Equal", 15, 16),
    Sketcher.Constraint("Equal", 16, 17),
    Sketcher.Constraint("Equal", 17, 18),
    Sketcher.Constraint("Equal", 18, 19),
    Sketcher.Constraint("Equal", 19, 20),
    Sketcher.Constraint("Equal", 20, 21),
    Sketcher.Constraint("Symmetric", 6, 3, 7, 3, -2),
    Sketcher.Constraint("Symmetric", 4, 3, 8, 3, -2),
    Sketcher.Constraint("Symmetric", 3, 3, 9, 3, -2),
    Sketcher.Constraint("Symmetric", 1, 3, 11, 3, -2),
    Sketcher.Constraint("Symmetric", 14, 3, 15, 3, -2),
    Sketcher.Constraint("Symmetric", 13, 3, 16, 3, -2),
    Sketcher.Constraint("Symmetric", 12, 3, 17, 3, -2),
    Sketcher.Constraint("Symmetric", 10, 3, 18, 3, -2),
    Sketcher.Constraint("Symmetric", 5, 3, 19, 3, -2),
    Sketcher.Constraint("Symmetric", 2, 3, 20, 3, -2),
    Sketcher.Constraint("Symmetric", 0, 3, 21, 3, -2),
    Sketcher.Constraint("Horizontal", 1, 3, 3, 3),
    Sketcher.Constraint("Horizontal", 3, 3, 4, 3),
    Sketcher.Constraint("Horizontal", 4, 3, 6, 3),
    Sketcher.Constraint("Horizontal", 10, 3, 12, 3),
    Sketcher.Constraint("Horizontal", 12, 3, 13, 3),
    Sketcher.Constraint("Horizontal", 13, 3, 14, 3),
    Sketcher.Constraint("Vertical", 0, 3, 2, 3),
    Sketcher.Constraint("Vertical", 2, 3, 5, 3),
    Sketcher.Constraint("Diameter", 0, Q("3 mm")),
    Sketcher.Constraint("DistanceX", 0, 3, -1, 1, Q("162 mm")),
    Sketcher.Constraint("DistanceX", 1, 3, -1, 1, Q("114 mm")),
    Sketcher.Constraint("DistanceX", 3, 3, -1, 1, Q("84 mm")),
    Sketcher.Constraint("DistanceX", 4, 3, -1, 1, Q("39 mm")),
    Sketcher.Constraint("DistanceX", 6, 3, -1, 1, Q("9 mm")),
    Sketcher.Constraint("DistanceX", 10, 3, -1, 1, Q("120 mm")),
    Sketcher.Constraint("DistanceX", 12, 3, -1, 1, Q("90 mm")),
    Sketcher.Constraint("DistanceX", 13, 3, -1, 1, Q("50 mm")),
    Sketcher.Constraint("DistanceX", 14, 3, -1, 1, Q("20 mm")),
    Sketcher.Constraint("DistanceY", -1, 1, 0, 3, Q("7.65 mm")),
    Sketcher.Constraint("DistanceY", 1, 3, -1, 1, Q("35.02 mm")),
    Sketcher.Constraint("DistanceY", -1, 1, 5, 3, Q("90.29 mm")),
    Sketcher.Constraint("DistanceY", -1, 1, 10, 3, Q("93.73 mm")),
    Sketcher.Constraint("DistanceY", -1, 1, 2, 3, Q("65.04259 mm")),
])
pocket2 = body.newObject("PartDesign::Pocket", "Pocket001")
pocket2.Profile = sketch3
pocket2.Length = 6
pocket2.Reversed = True

# Sketch on XY plane
sketch4 = body.newObject("Sketcher::SketchObject", "Sketch003")
sketch4.AttachmentSupport = (doc.getObject("XY_Plane"), [""])
sketch4.MapMode = "FlatFace"
sketch4.addGeometry([
    Part.LineSegment(Vector(246.329719, -38.02, 0), Vector(246.329719, -174.248985, 0)),
    Part.LineSegment(Vector(246.329719, -174.248985, 0), Vector(-209.715534, -174.248985, 0)),
    Part.LineSegment(Vector(-209.715534, -174.248985, 0), Vector(-209.715534, -38.02, 0)),
    Part.LineSegment(Vector(-209.715534, -38.02, 0), Vector(246.329719, -38.02, 0)),
], False)
sketch4.addConstraint([
    Sketcher.Constraint("Coincident", 0, 2, 1, 1),
    Sketcher.Constraint("Coincident", 1, 2, 2, 1),
    Sketcher.Constraint("Coincident", 2, 2, 3, 1),
    Sketcher.Constraint("Coincident", 3, 2, 0, 1),
    Sketcher.Constraint("Vertical", 0),
    Sketcher.Constraint("Horizontal", 1),
    Sketcher.Constraint("Vertical", 2),
    Sketcher.Constraint("Horizontal", 3),
    Sketcher.Constraint("DistanceY", 2, 2, -1, 1, Q("38.02 mm")),
    Sketcher.Constraint("DistanceX", 1, 2, 1, 1, Q("456.045253 mm")),
    Sketcher.Constraint("DistanceY", 0, 2, 0, 1, Q("136.228985 mm")),
    Sketcher.Constraint("DistanceX", -1, 1, 0, 2, Q("246.329719 mm")),
])
pocket3 = body.newObject("PartDesign::Pocket", "Pocket002")
pocket3.Profile = sketch4
pocket3.Length = 6
pocket3.Reversed = True

doc.recompute()
